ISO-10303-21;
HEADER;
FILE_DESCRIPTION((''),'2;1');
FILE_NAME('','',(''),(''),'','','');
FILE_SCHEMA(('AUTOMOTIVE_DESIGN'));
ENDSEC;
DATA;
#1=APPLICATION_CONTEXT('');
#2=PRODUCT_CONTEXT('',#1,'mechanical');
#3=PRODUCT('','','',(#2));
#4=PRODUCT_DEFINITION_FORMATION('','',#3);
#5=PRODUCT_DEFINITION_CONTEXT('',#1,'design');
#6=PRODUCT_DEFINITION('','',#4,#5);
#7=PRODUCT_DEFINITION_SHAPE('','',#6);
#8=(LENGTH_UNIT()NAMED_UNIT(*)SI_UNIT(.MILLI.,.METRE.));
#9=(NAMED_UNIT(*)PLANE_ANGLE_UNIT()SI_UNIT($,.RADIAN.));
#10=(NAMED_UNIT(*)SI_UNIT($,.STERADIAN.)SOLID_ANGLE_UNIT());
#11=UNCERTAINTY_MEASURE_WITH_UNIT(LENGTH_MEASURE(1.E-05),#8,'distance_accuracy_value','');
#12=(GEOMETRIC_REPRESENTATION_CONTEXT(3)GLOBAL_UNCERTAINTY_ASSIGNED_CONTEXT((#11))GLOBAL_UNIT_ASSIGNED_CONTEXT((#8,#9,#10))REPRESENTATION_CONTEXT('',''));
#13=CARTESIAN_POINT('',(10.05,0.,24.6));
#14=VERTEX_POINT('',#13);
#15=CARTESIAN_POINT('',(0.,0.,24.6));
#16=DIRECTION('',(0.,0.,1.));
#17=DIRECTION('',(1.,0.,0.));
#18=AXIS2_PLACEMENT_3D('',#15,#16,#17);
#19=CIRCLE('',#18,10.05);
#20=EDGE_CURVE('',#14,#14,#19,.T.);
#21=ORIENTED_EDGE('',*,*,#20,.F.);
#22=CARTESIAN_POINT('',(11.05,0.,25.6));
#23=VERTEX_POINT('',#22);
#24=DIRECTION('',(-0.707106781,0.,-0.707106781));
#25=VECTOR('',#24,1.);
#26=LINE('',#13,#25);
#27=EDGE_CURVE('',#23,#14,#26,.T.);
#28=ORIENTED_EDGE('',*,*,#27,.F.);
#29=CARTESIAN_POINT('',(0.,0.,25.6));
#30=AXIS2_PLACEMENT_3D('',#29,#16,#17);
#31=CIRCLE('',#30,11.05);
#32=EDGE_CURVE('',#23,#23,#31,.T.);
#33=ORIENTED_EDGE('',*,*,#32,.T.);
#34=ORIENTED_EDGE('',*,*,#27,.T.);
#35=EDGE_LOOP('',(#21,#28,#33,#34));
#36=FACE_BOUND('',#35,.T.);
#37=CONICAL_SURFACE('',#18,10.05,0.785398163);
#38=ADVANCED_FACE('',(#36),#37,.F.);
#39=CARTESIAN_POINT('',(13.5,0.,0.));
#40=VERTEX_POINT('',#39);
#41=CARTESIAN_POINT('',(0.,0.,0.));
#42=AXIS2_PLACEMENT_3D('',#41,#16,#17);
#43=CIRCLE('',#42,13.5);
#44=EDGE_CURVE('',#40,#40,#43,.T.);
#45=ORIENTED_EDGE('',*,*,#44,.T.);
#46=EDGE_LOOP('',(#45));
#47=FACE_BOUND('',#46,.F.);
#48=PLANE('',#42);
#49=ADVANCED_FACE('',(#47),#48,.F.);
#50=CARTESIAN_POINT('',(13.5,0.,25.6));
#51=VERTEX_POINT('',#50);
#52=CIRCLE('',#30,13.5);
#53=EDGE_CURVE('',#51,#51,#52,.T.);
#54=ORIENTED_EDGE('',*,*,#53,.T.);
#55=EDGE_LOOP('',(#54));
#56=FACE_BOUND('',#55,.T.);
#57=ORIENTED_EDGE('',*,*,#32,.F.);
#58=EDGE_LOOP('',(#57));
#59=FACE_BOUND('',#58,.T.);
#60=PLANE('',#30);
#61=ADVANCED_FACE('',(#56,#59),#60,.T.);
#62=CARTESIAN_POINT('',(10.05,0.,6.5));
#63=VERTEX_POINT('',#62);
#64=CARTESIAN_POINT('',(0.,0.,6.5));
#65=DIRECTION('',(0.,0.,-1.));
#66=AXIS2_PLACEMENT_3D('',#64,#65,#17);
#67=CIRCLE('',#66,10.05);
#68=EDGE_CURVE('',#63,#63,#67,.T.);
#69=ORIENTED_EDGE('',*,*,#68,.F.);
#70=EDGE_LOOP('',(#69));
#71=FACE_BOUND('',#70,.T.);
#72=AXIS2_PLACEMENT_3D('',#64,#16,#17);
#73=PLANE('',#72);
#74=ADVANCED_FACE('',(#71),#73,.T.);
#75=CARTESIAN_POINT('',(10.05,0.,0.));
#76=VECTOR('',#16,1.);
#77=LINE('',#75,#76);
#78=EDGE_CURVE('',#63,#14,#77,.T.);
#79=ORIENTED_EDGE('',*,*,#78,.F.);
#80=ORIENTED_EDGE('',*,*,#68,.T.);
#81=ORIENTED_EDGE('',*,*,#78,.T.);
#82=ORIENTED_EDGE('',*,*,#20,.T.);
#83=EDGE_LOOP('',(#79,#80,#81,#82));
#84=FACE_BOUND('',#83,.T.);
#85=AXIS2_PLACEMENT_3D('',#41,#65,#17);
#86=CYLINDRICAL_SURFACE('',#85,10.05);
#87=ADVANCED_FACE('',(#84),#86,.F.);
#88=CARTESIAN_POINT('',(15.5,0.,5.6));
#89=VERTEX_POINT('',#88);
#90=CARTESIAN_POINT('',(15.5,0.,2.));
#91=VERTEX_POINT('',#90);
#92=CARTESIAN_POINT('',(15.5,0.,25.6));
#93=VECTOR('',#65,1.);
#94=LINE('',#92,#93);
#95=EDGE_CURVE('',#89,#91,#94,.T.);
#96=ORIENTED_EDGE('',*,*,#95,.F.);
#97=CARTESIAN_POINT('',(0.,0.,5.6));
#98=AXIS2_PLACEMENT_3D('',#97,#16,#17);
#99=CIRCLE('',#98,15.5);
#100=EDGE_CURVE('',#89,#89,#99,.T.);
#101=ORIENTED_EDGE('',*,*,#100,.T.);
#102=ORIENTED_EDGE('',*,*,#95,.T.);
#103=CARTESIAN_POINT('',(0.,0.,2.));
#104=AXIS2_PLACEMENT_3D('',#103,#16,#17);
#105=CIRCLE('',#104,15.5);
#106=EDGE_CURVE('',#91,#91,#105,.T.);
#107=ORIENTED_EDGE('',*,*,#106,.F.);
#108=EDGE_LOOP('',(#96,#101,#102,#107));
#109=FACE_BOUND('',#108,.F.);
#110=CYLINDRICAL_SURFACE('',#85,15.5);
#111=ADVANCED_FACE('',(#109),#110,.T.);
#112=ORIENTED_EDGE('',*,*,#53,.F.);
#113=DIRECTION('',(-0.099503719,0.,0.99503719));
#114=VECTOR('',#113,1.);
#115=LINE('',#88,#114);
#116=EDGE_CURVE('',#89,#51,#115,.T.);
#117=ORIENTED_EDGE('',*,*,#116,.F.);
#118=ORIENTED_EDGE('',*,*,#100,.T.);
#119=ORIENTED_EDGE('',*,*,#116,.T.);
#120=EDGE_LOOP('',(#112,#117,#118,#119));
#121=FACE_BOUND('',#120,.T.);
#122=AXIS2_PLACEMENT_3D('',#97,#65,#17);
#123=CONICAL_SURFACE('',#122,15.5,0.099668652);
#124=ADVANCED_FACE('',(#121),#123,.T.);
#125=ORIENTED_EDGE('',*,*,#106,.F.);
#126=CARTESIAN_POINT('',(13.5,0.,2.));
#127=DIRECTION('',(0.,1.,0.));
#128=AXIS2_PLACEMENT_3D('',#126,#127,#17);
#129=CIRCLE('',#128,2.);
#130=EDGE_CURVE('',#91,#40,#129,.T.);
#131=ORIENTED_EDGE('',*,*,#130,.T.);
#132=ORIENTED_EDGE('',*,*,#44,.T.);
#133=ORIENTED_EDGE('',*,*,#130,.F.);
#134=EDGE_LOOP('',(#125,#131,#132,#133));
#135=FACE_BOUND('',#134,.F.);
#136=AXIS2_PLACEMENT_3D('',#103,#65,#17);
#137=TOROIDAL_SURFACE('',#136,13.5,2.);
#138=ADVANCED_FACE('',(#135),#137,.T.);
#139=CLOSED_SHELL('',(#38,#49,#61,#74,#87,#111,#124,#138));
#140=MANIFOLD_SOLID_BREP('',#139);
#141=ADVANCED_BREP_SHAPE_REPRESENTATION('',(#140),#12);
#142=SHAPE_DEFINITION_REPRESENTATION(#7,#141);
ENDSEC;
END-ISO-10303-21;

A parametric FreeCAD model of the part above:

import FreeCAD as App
import Part
import Sketcher
from FreeCAD import Vector


def edges_at(feature, points):
    """Names of the edges that pass closest to the given points."""
    edges = feature.Shape.Edges
    near = lambda p: min(range(len(edges)), key=lambda i: edges[i].distToShape(Part.Vertex(*p))[0])
    return sorted({f"Edge{near(p) + 1}" for p in points})

doc = App.newDocument("Part")
body = doc.addObject("PartDesign::Body", "Body")

# Sketch on XY plane
sketch1 = body.newObject("Sketcher::SketchObject", "Sketch")
sketch1.AttachmentSupport = (doc.getObject("XY_Plane"), [""])
sketch1.MapMode = "FlatFace"
sketch1.addGeometry(Part.Circle(Vector(0, 0, 0), Vector(0, 0, 1), 15.5), False)
sketch1.addConstraint([
    Sketcher.Constraint("Coincident", 0, 3, -1, 1),
    Sketcher.Constraint("Diameter", 0, 31.0),
])
pad1 = body.newObject("PartDesign::Pad", "Pad")
pad1.Profile = sketch1
pad1.Length = 6.5

# Sketch on XY plane
sketch2 = body.newObject("Sketcher::SketchObject", "Sketch001")
sketch2.AttachmentSupport = (doc.getObject("XY_Plane"), [""])
sketch2.MapMode = "FlatFace"
sketch2.addGeometry([
    Part.Circle(Vector(0, 0, 0), Vector(0, 0, 1), 15.5),
    Part.Circle(Vector(0, 0, 0), Vector(0, 0, 1), 10.05),
], False)
sketch2.addConstraint([
    Sketcher.Constraint("Coincident", 0, 3, -1, 1),
    Sketcher.Constraint("Coincident", 1, 3, -1, 1),
    Sketcher.Constraint("Diameter", 0, 31.0),
    Sketcher.Constraint("Diameter", 1, 20.1),
])
pad2 = body.newObject("PartDesign::Pad", "Pad001")
pad2.Profile = sketch2
pad2.Length = 25.6
doc.recompute()

fillet = body.newObject("PartDesign::Fillet", "Fillet")
fillet.Base = (pad2, edges_at(pad2, [(-15.5, 0, 0)]))
fillet.Radius = 2
doc.recompute()

chamfer = body.newObject("PartDesign::Chamfer", "Chamfer")
chamfer.Base = (fillet, edges_at(fillet, [(15.5, 0, 13.8), (-15.5, 0, 2), (-15.5, 0, 25.6)]))
chamfer.ChamferType = "Two distances"
chamfer.Size = 20
chamfer.Size2 = 2
doc.recompute()

chamfer2 = body.newObject("PartDesign::Chamfer", "Chamfer001")
chamfer2.Base = (chamfer, edges_at(chamfer, [(-10.05, 0, 25.6)]))
chamfer2.Size = 1

doc.recompute()
